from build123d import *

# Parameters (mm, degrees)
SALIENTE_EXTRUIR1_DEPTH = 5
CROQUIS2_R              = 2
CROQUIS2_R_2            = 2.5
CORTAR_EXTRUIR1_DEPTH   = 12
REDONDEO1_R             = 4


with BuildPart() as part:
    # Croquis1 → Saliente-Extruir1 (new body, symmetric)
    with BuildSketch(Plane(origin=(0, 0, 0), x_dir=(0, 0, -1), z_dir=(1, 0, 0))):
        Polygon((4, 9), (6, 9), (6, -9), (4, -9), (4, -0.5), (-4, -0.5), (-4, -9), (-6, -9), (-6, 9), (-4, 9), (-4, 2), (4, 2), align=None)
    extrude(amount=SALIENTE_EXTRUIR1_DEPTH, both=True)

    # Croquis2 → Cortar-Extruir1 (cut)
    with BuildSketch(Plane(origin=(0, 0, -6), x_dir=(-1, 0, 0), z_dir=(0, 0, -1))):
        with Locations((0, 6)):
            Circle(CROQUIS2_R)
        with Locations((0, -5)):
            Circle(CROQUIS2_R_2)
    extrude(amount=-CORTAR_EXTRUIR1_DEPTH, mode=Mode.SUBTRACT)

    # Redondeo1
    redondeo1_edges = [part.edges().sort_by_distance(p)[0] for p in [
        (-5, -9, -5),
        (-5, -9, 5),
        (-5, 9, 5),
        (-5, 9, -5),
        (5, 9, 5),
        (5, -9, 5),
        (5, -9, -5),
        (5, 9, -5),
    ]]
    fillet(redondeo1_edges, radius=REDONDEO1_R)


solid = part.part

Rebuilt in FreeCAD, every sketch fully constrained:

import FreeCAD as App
import Part
import Sketcher
from FreeCAD import Vector
Q = App.Units.Quantity


def edges_at(feature, points):
    """Names of the edges that pass closest to the given points."""
    edges = feature.Shape.Edges
    near = lambda p: min(range(len(edges)), key=lambda i: edges[i].distToShape(Part.Vertex(*p))[0])
    return sorted({f"Edge{near(p) + 1}" for p in points})

doc = App.newDocument("Part")
body = doc.addObject("PartDesign::Body", "Body")

# Sketch on YZ plane
sketch1 = doc.addObject("Sketcher::SketchObject", "Sketch")
body.addObject(sketch1)
sketch1.AttachmentSupport = (doc.YZ_Plane, [""])
sketch1.MapMode = "FlatFace"
sketch1.addGeometry([
    Part.LineSegment(Vector(9, -6, 0), Vector(9, -4, 0)),  # 0
    Part.LineSegment(Vector(9, -4, 0), Vector(2, -4, 0)),  # 1
    Part.LineSegment(Vector(2, -4, 0), Vector(2, 4, 0)),  # 2
    Part.LineSegment(Vector(2, 4, 0), Vector(9, 4, 0)),  # 3
    Part.LineSegment(Vector(9, 4, 0), Vector(9, 6, 0)),  # 4
    Part.LineSegment(Vector(9, 6, 0), Vector(-9, 6, 0)),  # 5
    Part.LineSegment(Vector(-9, 6, 0), Vector(-9, 4, 0)),  # 6
    Part.LineSegment(Vector(-9, 4, 0), Vector(-0.5, 4, 0)),  # 7
    Part.LineSegment(Vector(-0.5, 4, 0), Vector(-0.5, -4, 0)),  # 8
    Part.LineSegment(Vector(-0.5, -4, 0), Vector(-9, -4, 0)),  # 9
    Part.LineSegment(Vector(-9, -4, 0), Vector(-9, -6, 0)),  # 10
    Part.LineSegment(Vector(-9, -6, 0), Vector(9, -6, 0)),  # 11
], False)
sketch1.addConstraint([
    Sketcher.Constraint("Coincident", 0, 2, 1, 1),
    Sketcher.Constraint("Coincident", 1, 2, 2, 1),
    Sketcher.Constraint("Coincident", 2, 2, 3, 1),
    Sketcher.Constraint("Coincident", 3, 2, 4, 1),
    Sketcher.Constraint("Coincident", 4, 2, 5, 1),
    Sketcher.Constraint("Coincident", 5, 2, 6, 1),
    Sketcher.Constraint("Coincident", 6, 2, 7, 1),
    Sketcher.Constraint("Coincident", 7, 2, 8, 1),
    Sketcher.Constraint("Coincident", 8, 2, 9, 1),
    Sketcher.Constraint("Coincident", 9, 2, 10, 1),
    Sketcher.Constraint("Coincident", 10, 2, 11, 1),
    Sketcher.Constraint("Coincident", 11, 2, 0, 1),
    Sketcher.Constraint("Vertical", 0),
    Sketcher.Constraint("Horizontal", 1),
    Sketcher.Constraint("Vertical", 2),
    Sketcher.Constraint("Horizontal", 3),
    Sketcher.Constraint("Vertical", 4),
    Sketcher.Constraint("Horizontal", 5),
    Sketcher.Constraint("Vertical", 6),
    Sketcher.Constraint("Horizontal", 7),
    Sketcher.Constraint("Vertical", 8),
    Sketcher.Constraint("Horizontal", 9),
    Sketcher.Constraint("Vertical", 10),
    Sketcher.Constraint("Horizontal", 11),
    Sketcher.Constraint("Symmetric", 0, 2, 6, 2, -1, 1),
    Sketcher.Constraint("Symmetric", 3, 2, 9, 2, -1, 1),
    Sketcher.Constraint("Symmetric", 3, 2, 6, 2, -2),
    Sketcher.Constraint("Equal", 0, 4),
    Sketcher.Constraint("DistanceX", 1, 2, 1, 1, Q("7 mm")),
    Sketcher.Constraint("DistanceX", 5, 2, 5, 1, Q("18 mm")),
    Sketcher.Constraint("DistanceY", 0, 1, 0, 2, Q("2 mm")),
    Sketcher.Constraint("DistanceY", 2, 1, 2, 2, Q("8 mm")),
    Sketcher.Constraint("DistanceX", 7, 1, 7, 2, Q("8.5 mm")),
])
pad1 = doc.addObject("PartDesign::Pad", "Pad")
body.addObject(pad1)
pad1.Profile = sketch1
pad1.Length = 10
pad1.Midplane = True

# Sketch on XY plane
sketch2 = doc.addObject("Sketcher::SketchObject", "Sketch001")
body.addObject(sketch2)
sketch2.AttachmentSupport = (doc.XY_Plane, [""])
sketch2.MapMode = "FlatFace"
sketch2.AttachmentOffset = App.Placement(Vector(0, 0, -6), App.Rotation())
sketch2.addGeometry([
    Part.Circle(Vector(0, 6, 0), Vector(0, 0, 1), 2),
    Part.Circle(Vector(0, -5, 0), Vector(0, 0, 1), 2.5),
], False)
sketch2.addConstraint([
    Sketcher.Constraint("PointOnObject", 0, 3, -2),
    Sketcher.Constraint("PointOnObject", 1, 3, -2),
    Sketcher.Constraint("Diameter", 0, Q("4 mm")),
    Sketcher.Constraint("Diameter", 1, Q("5 mm")),
    Sketcher.Constraint("DistanceY", -1, 1, 0, 3, Q("6 mm")),
    Sketcher.Constraint("DistanceY", 1, 3, -1, 1, Q("5 mm")),
])
pocket1 = doc.addObject("PartDesign::Pocket", "Pocket")
body.addObject(pocket1)
pocket1.Profile = sketch2
pocket1.Length = 12
pocket1.Reversed = True
doc.recompute()

fillet = doc.addObject("PartDesign::Fillet", "Fillet")
body.addObject(fillet)
fillet.Base = (pocket1, edges_at(pocket1, [
    (-5, -9, -5),
    (-5, -9, 5),
    (-5, 9, 5),
    (-5, 9, -5),
    (5, 9, 5),
    (5, -9, 5),
    (5, -9, -5),
    (5, 9, -5),
]))
fillet.Radius = 4

doc.recompute()
